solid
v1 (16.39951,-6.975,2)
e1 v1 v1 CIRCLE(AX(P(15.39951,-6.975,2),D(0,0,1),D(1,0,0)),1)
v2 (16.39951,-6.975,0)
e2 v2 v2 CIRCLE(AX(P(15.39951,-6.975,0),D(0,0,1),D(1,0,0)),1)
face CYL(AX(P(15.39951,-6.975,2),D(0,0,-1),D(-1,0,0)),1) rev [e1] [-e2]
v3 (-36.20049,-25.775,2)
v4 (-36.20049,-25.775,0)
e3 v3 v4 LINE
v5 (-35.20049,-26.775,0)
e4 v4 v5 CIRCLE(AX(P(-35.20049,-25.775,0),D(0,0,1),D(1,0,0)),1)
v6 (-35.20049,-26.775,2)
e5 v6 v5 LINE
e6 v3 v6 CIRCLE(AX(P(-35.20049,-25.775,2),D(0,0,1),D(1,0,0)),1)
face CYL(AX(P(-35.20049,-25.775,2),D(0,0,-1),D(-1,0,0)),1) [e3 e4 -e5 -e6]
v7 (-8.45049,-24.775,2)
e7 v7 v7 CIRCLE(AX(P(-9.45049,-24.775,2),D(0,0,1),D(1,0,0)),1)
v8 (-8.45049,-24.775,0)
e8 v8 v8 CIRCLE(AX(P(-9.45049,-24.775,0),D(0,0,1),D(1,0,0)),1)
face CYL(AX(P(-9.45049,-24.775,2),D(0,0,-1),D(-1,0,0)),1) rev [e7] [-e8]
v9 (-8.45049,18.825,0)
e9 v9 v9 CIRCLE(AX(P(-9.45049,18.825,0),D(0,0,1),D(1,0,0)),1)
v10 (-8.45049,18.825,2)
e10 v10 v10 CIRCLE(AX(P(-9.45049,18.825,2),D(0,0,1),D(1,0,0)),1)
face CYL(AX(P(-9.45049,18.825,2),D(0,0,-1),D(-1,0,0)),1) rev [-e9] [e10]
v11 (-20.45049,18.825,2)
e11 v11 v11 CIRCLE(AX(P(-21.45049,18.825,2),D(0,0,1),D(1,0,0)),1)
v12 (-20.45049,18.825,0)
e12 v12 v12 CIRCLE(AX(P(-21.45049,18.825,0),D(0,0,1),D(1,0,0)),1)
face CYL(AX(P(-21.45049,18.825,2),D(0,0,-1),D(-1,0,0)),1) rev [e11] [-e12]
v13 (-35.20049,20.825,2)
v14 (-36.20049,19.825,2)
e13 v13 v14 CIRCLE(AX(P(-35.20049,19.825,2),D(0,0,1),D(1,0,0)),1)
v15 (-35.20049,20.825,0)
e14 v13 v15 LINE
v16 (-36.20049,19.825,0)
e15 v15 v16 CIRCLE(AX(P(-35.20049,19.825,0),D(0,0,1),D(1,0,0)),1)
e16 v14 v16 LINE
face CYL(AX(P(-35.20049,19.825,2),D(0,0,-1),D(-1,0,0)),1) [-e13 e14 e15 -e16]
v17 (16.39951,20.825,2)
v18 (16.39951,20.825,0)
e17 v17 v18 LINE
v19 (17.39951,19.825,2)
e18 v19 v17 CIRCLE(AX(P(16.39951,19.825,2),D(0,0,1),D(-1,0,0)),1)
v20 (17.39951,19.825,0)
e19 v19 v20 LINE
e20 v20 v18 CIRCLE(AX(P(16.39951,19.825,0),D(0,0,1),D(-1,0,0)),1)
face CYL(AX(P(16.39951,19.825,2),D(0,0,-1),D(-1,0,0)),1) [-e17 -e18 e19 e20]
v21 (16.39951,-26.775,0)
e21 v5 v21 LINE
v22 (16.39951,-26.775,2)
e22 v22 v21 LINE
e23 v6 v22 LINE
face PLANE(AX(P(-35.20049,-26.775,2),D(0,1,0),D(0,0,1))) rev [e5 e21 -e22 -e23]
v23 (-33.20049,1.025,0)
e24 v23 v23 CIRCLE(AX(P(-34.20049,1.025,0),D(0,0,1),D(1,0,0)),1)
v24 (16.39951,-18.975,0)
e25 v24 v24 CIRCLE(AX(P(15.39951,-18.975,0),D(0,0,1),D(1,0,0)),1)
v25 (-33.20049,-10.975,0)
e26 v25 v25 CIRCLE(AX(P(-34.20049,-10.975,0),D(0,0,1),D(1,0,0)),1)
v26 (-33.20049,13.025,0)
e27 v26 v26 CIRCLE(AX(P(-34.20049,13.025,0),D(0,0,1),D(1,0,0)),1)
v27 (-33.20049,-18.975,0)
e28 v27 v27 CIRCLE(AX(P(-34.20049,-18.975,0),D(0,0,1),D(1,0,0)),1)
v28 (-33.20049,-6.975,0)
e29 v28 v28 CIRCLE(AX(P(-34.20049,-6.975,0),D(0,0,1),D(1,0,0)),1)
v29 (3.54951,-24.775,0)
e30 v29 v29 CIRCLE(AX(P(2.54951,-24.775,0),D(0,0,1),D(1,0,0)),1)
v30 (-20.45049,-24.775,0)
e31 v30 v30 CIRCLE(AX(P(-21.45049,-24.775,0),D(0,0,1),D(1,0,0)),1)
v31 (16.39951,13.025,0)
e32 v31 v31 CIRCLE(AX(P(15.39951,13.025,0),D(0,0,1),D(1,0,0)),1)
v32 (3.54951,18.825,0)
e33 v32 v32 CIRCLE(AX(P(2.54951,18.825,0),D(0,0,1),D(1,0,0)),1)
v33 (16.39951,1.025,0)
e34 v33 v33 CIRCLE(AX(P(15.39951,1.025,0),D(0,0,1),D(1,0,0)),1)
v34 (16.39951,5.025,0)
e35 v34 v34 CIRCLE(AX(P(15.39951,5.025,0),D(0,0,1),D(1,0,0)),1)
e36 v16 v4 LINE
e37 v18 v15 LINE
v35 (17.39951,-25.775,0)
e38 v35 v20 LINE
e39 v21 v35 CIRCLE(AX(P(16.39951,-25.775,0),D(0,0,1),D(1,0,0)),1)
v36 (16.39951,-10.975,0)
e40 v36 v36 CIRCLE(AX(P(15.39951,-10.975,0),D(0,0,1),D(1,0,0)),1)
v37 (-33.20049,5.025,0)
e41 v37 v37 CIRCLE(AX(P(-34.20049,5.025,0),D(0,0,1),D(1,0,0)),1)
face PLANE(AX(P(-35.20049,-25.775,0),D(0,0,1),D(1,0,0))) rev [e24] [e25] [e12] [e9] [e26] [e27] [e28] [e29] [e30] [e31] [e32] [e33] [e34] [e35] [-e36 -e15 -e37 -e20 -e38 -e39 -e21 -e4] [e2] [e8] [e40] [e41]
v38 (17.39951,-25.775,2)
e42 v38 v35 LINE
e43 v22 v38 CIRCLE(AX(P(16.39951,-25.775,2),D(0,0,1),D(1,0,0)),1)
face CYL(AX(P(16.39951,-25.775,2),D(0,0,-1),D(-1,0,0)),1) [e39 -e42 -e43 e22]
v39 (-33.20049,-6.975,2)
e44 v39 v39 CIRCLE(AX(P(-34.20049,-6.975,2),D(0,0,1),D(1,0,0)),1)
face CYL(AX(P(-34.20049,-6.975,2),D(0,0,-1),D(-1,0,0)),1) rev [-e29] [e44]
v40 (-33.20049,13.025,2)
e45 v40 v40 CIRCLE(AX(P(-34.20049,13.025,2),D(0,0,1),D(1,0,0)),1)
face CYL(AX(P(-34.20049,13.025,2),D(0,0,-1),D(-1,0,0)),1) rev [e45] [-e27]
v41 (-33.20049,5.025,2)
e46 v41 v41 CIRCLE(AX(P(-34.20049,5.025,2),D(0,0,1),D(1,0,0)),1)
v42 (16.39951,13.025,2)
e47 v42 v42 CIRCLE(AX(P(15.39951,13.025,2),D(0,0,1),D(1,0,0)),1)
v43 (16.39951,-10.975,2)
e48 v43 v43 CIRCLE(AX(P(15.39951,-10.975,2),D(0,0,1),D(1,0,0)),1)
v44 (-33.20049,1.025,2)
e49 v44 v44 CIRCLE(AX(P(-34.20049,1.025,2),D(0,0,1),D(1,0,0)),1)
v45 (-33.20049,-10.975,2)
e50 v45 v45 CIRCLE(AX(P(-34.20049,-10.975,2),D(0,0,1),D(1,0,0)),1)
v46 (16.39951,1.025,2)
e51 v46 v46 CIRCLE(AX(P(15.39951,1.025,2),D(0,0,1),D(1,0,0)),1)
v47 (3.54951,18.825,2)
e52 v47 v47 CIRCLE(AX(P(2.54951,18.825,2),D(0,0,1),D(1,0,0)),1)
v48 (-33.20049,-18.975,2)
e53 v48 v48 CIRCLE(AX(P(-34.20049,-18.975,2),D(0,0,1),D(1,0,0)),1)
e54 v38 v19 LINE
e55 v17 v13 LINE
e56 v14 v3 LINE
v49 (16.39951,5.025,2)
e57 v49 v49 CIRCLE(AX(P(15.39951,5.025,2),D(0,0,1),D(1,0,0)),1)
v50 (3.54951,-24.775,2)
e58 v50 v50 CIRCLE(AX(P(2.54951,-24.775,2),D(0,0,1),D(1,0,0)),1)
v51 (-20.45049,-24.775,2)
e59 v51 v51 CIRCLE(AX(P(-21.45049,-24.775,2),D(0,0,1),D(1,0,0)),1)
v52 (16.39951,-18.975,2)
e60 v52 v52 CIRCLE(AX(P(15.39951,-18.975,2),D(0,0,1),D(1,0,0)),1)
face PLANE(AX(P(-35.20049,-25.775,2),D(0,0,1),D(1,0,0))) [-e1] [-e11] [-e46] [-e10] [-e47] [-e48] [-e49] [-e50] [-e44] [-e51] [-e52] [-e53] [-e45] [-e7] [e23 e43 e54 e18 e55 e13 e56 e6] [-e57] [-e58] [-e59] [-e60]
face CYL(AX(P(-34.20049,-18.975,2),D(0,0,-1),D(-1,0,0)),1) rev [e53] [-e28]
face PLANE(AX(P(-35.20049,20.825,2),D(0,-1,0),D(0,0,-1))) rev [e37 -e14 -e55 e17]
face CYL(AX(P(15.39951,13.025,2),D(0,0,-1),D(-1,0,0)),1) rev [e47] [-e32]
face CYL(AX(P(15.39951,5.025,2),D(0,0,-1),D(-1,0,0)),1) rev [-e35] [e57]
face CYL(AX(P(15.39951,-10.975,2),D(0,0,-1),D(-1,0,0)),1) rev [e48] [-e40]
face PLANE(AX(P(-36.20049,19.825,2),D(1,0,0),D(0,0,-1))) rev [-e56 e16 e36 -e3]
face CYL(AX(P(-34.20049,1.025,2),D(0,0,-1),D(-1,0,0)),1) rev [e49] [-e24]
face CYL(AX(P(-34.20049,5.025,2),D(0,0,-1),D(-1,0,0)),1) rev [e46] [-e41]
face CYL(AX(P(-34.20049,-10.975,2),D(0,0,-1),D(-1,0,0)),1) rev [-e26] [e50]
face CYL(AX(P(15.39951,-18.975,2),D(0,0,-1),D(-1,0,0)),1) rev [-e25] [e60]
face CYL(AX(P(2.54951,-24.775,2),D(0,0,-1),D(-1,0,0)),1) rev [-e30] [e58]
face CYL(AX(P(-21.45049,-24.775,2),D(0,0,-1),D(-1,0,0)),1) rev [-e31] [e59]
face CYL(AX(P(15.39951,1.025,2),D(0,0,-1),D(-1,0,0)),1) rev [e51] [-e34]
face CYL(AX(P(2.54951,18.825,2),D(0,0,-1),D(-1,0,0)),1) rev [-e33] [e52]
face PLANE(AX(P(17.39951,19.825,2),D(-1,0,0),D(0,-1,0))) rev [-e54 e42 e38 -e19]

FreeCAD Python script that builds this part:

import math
import FreeCAD as App
import Part
import Sketcher

V = App.Vector
Q = App.Units.Quantity

doc = App.newDocument("Part")
params = doc.addObject("Spreadsheet::Sheet", "Params")
for row, (alias, value) in enumerate([
    ("sketch1_diameter", "2 mm"),
    ("sketch1_width", "51.6 mm"),
    ("sketch1_height", "45.6 mm"),
    ("pad1_length", "2 mm"),
], start=1):
    params.set(f"A{row}", alias)
    params.set(f"B{row}", "=" + value)
    params.setAlias(f"B{row}", alias)

body = doc.addObject("PartDesign::Body", "Body")

# Sketch on XY plane
sketch1 = doc.addObject("Sketcher::SketchObject", "Sketch")
body.addObject(sketch1)
sketch1.AttachmentSupport = (doc.XY_Plane, [""])
sketch1.MapMode = "FlatFace"
sketch1.addGeometry([
    Part.LineSegment(V(16.39951, 20.825, 0), V(-35.20049, 20.825, 0)),  # 0
    Part.ArcOfCircle(Part.Circle(V(-35.20049, 19.825, 0), V(0, 0, 1), 1), math.radians(90), math.radians(180)),  # 1
    Part.LineSegment(V(-36.20049, 19.825, 0), V(-36.20049, -25.775, 0)),  # 2
    Part.ArcOfCircle(Part.Circle(V(-35.20049, -25.775, 0), V(0, 0, 1), 1), math.radians(-180), math.radians(-90)),  # 3
    Part.LineSegment(V(-35.20049, -26.775, 0), V(16.39951, -26.775, 0)),  # 4
    Part.ArcOfCircle(Part.Circle(V(16.39951, -25.775, 0), V(0, 0, 1), 1), math.radians(-90), math.radians(0)),  # 5
    Part.LineSegment(V(17.39951, -25.775, 0), V(17.39951, 19.825, 0)),  # 6
    Part.ArcOfCircle(Part.Circle(V(16.39951, 19.825, 0), V(0, 0, 1), 1), math.radians(0), math.radians(90)),  # 7
    Part.Circle(V(15.39951, -18.975, 0), V(0, 0, 1), 1),  # 8
    Part.Circle(V(2.54951, -24.775, 0), V(0, 0, 1), 1),  # 9
    Part.Circle(V(15.39951, -10.975, 0), V(0, 0, 1), 1),  # 10
    Part.Circle(V(15.39951, -6.975, 0), V(0, 0, 1), 1),  # 11
    Part.Circle(V(-9.45049, -24.775, 0), V(0, 0, 1), 1),  # 12
    Part.Circle(V(-21.45049, -24.775, 0), V(0, 0, 1), 1),  # 13
    Part.Circle(V(-34.20049, -18.975, 0), V(0, 0, 1), 1),  # 14
    Part.Circle(V(-34.20049, -10.975, 0), V(0, 0, 1), 1),  # 15
    Part.Circle(V(-34.20049, -6.975, 0), V(0, 0, 1), 1),  # 16
    Part.Circle(V(15.39951, 1.025, 0), V(0, 0, 1), 1),  # 17
    Part.Circle(V(15.39951, 5.025, 0), V(0, 0, 1), 1),  # 18
    Part.Circle(V(15.39951, 13.025, 0), V(0, 0, 1), 1),  # 19
    Part.Circle(V(2.54951, 18.825, 0), V(0, 0, 1), 1),  # 20
    Part.Circle(V(-34.20049, 1.025, 0), V(0, 0, 1), 1),  # 21
    Part.Circle(V(-34.20049, 5.025, 0), V(0, 0, 1), 1),  # 22
    Part.Circle(V(-9.45049, 18.825, 0), V(0, 0, 1), 1),  # 23
    Part.Circle(V(-21.45049, 18.825, 0), V(0, 0, 1), 1),  # 24
    Part.Circle(V(-34.20049, 13.025, 0), V(0, 0, 1), 1),  # 25
], False)
sketch1.addConstraint([
    Sketcher.Constraint("Tangent", 0, 2, 1, 1),
    Sketcher.Constraint("Tangent", 1, 2, 2, 1),
    Sketcher.Constraint("Tangent", 2, 2, 3, 1),
    Sketcher.Constraint("Tangent", 3, 2, 4, 1),
    Sketcher.Constraint("Tangent", 4, 2, 5, 1),
    Sketcher.Constraint("Tangent", 5, 2, 6, 1),
    Sketcher.Constraint("Tangent", 6, 2, 7, 1),
    Sketcher.Constraint("Tangent", 7, 2, 0, 1),
    Sketcher.Constraint("Horizontal", 0),
    Sketcher.Constraint("Vertical", 2),
    Sketcher.Constraint("Horizontal", 4),
    Sketcher.Constraint("Vertical", 6),
    Sketcher.Constraint("Equal", 1, 3),
    Sketcher.Constraint("Equal", 3, 5),
    Sketcher.Constraint("Equal", 5, 7),
    Sketcher.Constraint("Equal", 7, 8),
    Sketcher.Constraint("Equal", 8, 9),
    Sketcher.Constraint("Equal", 9, 10),
    Sketcher.Constraint("Equal", 10, 11),
    Sketcher.Constraint("Equal", 11, 12),
    Sketcher.Constraint("Equal", 12, 13),
    Sketcher.Constraint("Equal", 13, 14),
    Sketcher.Constraint("Equal", 14, 15),
    Sketcher.Constraint("Equal", 15, 16),
    Sketcher.Constraint("Equal", 16, 17),
    Sketcher.Constraint("Equal", 17, 18),
    Sketcher.Constraint("Equal", 18, 19),
    Sketcher.Constraint("Equal", 19, 20),
    Sketcher.Constraint("Equal", 20, 21),
    Sketcher.Constraint("Equal", 21, 22),
    Sketcher.Constraint("Equal", 22, 23),
    Sketcher.Constraint("Equal", 23, 24),
    Sketcher.Constraint("Equal", 24, 25),
    Sketcher.Constraint("Horizontal", 9, 3, 12, 3),
    Sketcher.Constraint("Horizontal", 12, 3, 13, 3),
    Sketcher.Constraint("Horizontal", 8, 3, 14, 3),
    Sketcher.Constraint("Horizontal", 10, 3, 15, 3),
    Sketcher.Constraint("Horizontal", 11, 3, 16, 3),
    Sketcher.Constraint("Horizontal", 17, 3, 21, 3),
    Sketcher.Constraint("Horizontal", 18, 3, 22, 3),
    Sketcher.Constraint("Horizontal", 20, 3, 23, 3),
    Sketcher.Constraint("Horizontal", 23, 3, 24, 3),
    Sketcher.Constraint("Horizontal", 19, 3, 25, 3),
    Sketcher.Constraint("Vertical", 8, 3, 10, 3),
    Sketcher.Constraint("Vertical", 10, 3, 11, 3),
    Sketcher.Constraint("Vertical", 14, 3, 15, 3),
    Sketcher.Constraint("Vertical", 15, 3, 16, 3),
    Sketcher.Constraint("Vertical", 11, 3, 17, 3),
    Sketcher.Constraint("Vertical", 17, 3, 18, 3),
    Sketcher.Constraint("Vertical", 18, 3, 19, 3),
    Sketcher.Constraint("Vertical", 9, 3, 20, 3),
    Sketcher.Constraint("Vertical", 16, 3, 21, 3),
    Sketcher.Constraint("Vertical", 21, 3, 22, 3),
    Sketcher.Constraint("Vertical", 12, 3, 23, 3),
    Sketcher.Constraint("Vertical", 13, 3, 24, 3),
    Sketcher.Constraint("Vertical", 22, 3, 25, 3),
    Sketcher.Constraint("Diameter", 8, Q("2 mm")),
    Sketcher.Constraint("DistanceX", 0, 2, 0, 1, Q("51.6 mm")),
    Sketcher.Constraint("DistanceY", 2, 2, 2, 1, Q("45.6 mm")),
    Sketcher.Constraint("DistanceX", 8, 3, 5, 3, Q("1 mm")),
    Sketcher.Constraint("DistanceY", 5, 3, 9, 3, Q("1 mm")),
    Sketcher.Constraint("DistanceY", 8, 3, 10, 3, Q("8 mm")),
    Sketcher.Constraint("DistanceY", 10, 3, 11, 3, Q("4 mm")),
    Sketcher.Constraint("DistanceX", 12, 3, 9, 3, Q("12 mm")),
    Sketcher.Constraint("DistanceX", 13, 3, 12, 3, Q("12 mm")),
    Sketcher.Constraint("DistanceX", 3, 3, 14, 3, Q("1 mm")),
    Sketcher.Constraint("DistanceY", 11, 3, 17, 3, Q("8 mm")),
    Sketcher.Constraint("DistanceY", 17, 3, 18, 3, Q("4 mm")),
    Sketcher.Constraint("DistanceY", 18, 3, 19, 3, Q("8 mm")),
    Sketcher.Constraint("DistanceY", 20, 3, 7, 3, Q("1 mm")),
    Sketcher.Constraint("DistanceY", 5, 3, 8, 3, Q("6.8 mm")),
    Sketcher.Constraint("DistanceX", 9, 3, 5, 3, Q("13.85 mm")),
    Sketcher.Constraint("DistanceY", -1, 1, 1, 3, Q("19.825 mm")),
    Sketcher.Constraint("DistanceX", 1, 3, -1, 1, Q("35.20049 mm")),
])
sketch1.setExpression("Constraints[56]", "Params.sketch1_diameter")
sketch1.setExpression("Constraints[57]", "Params.sketch1_width")
sketch1.setExpression("Constraints[58]", "Params.sketch1_height")
pad1 = doc.addObject("PartDesign::Pad", "Pad")
body.addObject(pad1)
pad1.Profile = sketch1
pad1.setExpression("Length", "Params.pad1_length")

doc.recompute()
